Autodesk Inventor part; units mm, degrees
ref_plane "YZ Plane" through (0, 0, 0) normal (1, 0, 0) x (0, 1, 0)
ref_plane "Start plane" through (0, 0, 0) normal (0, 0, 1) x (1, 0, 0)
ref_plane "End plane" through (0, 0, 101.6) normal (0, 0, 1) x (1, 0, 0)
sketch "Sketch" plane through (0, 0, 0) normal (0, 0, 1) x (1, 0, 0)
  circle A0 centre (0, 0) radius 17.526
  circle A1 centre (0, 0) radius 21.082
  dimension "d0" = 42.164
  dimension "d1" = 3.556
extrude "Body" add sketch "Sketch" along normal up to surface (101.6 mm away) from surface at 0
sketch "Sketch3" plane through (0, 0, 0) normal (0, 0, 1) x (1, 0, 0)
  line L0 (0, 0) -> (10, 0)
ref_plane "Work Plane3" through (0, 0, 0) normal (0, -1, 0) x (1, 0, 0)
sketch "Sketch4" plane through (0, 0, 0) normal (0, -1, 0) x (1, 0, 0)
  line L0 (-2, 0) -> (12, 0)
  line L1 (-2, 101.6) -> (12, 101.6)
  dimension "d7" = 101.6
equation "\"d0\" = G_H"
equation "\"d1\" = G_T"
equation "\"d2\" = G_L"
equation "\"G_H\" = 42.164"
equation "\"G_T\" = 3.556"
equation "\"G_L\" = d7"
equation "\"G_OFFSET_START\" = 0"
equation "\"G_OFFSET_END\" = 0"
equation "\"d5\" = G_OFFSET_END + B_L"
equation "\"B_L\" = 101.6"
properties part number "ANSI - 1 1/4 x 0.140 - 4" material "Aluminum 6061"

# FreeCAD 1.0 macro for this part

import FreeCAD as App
import Part
import Sketcher
from FreeCAD import Vector
Q = App.Units.Quantity

doc = App.newDocument("Part")
body = doc.addObject("PartDesign::Body", "Body")

# Sketch on XY plane
sketch1 = doc.addObject("Sketcher::SketchObject", "Sketch")
body.addObject(sketch1)
sketch1.AttachmentSupport = (doc.XY_Plane, [""])
sketch1.MapMode = "FlatFace"
sketch1.addGeometry([
    Part.Circle(Vector(0, 0, 0), Vector(0, 0, 1), 21),
    Part.Circle(Vector(0, 0, 0), Vector(0, 0, 1), 18),
], False)
sketch1.addConstraint([
    Sketcher.Constraint("Coincident", 0, 3, -1, 1),
    Sketcher.Constraint("Coincident", 1, 3, -1, 1),
    Sketcher.Constraint("Diameter", 0, Q("1.66 in")),
    Sketcher.Constraint("Diameter", 1, Q("1.38 in")),
])
pad1 = doc.addObject("PartDesign::Pad", "Pad")
body.addObject(pad1)
pad1.Profile = sketch1
pad1.Length = Q("4 in")

doc.recompute()
